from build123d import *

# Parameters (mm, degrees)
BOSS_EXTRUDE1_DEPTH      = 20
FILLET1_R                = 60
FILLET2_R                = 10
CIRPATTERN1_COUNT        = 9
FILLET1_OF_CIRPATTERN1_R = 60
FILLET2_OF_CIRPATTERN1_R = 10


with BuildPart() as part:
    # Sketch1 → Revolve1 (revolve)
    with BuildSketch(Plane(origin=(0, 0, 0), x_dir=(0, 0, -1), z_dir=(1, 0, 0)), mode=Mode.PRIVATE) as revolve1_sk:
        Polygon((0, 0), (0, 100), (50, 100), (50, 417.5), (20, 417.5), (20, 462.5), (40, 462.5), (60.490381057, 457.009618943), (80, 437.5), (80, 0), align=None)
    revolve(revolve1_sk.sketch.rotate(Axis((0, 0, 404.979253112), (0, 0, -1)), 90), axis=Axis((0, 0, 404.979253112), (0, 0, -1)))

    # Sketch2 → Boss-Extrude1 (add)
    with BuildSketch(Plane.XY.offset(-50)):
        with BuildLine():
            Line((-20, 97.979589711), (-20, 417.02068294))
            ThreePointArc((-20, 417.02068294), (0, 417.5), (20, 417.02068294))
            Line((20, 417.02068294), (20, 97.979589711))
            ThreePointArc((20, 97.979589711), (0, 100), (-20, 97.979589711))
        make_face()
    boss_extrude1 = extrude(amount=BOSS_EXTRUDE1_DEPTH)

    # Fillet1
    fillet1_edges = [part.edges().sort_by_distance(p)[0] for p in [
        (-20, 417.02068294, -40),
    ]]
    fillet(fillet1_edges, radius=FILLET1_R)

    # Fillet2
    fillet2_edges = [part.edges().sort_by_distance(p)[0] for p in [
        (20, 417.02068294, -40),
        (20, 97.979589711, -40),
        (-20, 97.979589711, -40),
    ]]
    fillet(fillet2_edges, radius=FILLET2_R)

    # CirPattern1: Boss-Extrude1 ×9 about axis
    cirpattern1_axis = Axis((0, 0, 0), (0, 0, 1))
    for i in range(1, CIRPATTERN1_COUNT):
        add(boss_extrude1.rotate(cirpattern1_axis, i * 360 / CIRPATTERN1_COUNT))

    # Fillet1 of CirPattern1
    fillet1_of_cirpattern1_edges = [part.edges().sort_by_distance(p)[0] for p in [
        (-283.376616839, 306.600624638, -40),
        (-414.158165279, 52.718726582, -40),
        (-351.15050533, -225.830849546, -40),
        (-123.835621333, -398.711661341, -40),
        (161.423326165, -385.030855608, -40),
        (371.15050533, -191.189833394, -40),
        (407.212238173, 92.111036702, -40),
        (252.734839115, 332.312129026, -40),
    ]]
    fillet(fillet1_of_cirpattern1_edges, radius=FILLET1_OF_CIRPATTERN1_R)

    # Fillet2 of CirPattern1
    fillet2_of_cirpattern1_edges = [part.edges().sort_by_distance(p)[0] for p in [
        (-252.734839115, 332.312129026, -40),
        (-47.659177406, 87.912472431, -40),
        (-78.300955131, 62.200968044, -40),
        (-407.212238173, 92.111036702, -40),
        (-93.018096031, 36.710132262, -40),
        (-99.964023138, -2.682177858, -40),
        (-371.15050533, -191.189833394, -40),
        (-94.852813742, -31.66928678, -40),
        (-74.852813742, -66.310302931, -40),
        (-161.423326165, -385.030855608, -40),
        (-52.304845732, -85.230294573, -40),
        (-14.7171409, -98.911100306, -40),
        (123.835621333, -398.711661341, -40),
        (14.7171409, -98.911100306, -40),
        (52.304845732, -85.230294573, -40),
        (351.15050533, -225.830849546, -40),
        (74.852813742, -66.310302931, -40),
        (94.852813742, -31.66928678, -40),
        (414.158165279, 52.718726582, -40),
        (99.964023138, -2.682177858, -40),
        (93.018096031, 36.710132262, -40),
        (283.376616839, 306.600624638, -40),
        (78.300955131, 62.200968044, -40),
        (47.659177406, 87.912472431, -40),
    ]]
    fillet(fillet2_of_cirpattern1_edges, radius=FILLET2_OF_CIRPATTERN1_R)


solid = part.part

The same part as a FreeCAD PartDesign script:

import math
import FreeCAD as App
import Part
import Sketcher
Q = App.Units.Quantity


def edges_at(feature, points):
    """Names of the edges that pass closest to the given points."""
    edges = feature.Shape.Edges
    near = lambda p: min(range(len(edges)), key=lambda i: edges[i].distToShape(Part.Vertex(*p))[0])
    return sorted({f"Edge{near(p) + 1}" for p in points})


def add_polygon(sketch, points):
    """Adds a closed chain of lines whose ends are joined by coincident constraints."""
    first, n = sketch.GeometryCount, len(points)
    for a, b in zip(points, points[1:] + points[:1]):
        sketch.addGeometry(Part.LineSegment(App.Vector(*a, 0), App.Vector(*b, 0)), False)
    for i in range(n):
        sketch.addConstraint(Sketcher.Constraint("Coincident", first + i, 2, first + (i + 1) % n, 1))

doc = App.newDocument("Part")
params = doc.addObject("Spreadsheet::Sheet", "Params")
for row, (alias, value) in enumerate([
    ("sketch1_width", "100 mm"),
    ("sketch1_width2", "45 mm"),
    ("sketch1_height", "80 mm"),
    ("sketch1_height2", "20 mm"),
    ("sketch1_height3", "30 mm"),
    ("revolution_angle", "360 deg"),
    ("sketch2_radius", "100 mm"),
    ("sketch2_radius2", "417.5 mm"),
    ("pad1_length", "20 mm"),
    ("fillet_radius", "60 mm"),
    ("fillet2_radius", "10 mm"),
    ("fillet3_radius", "60 mm"),
    ("fillet4_radius", "10 mm"),
], start=1):
    params.set(f"A{row}", alias)
    params.set(f"B{row}", "=" + value)
    params.setAlias(f"B{row}", alias)

body = doc.addObject("PartDesign::Body", "Body")

sketch1 = body.newObject("Sketcher::SketchObject", "Sketch")
sketch1.AttachmentSupport = (doc.getObject("YZ_Plane"), [""])
sketch1.MapMode = "FlatFace"
add_polygon(sketch1, [(100, 0), (0, 0), (0, -80), (438, -80), (457, -60), (462, -40), (462, -20), (418, -20), (418, -50), (100, -50)])
sketch1.addConstraint(Sketcher.Constraint("Horizontal", 0))
sketch1.addConstraint(Sketcher.Constraint("Vertical", 1))
sketch1.addConstraint(Sketcher.Constraint("Horizontal", 2))
sketch1.addConstraint(Sketcher.Constraint("Vertical", 5))
sketch1.addConstraint(Sketcher.Constraint("Horizontal", 6))
sketch1.addConstraint(Sketcher.Constraint("Vertical", 7))
sketch1.addConstraint(Sketcher.Constraint("Horizontal", 8))
sketch1.addConstraint(Sketcher.Constraint("Vertical", 9))
sketch1.addConstraint(Sketcher.Constraint("Coincident", 0, 2, -1, 1))
sketch1.addConstraint(Sketcher.Constraint("DistanceX", 0, 2, 0, 1, 100.0))
sketch1.addConstraint(Sketcher.Constraint("DistanceX", 6, 2, 6, 1, 45.0))
sketch1.addConstraint(Sketcher.Constraint("DistanceY", 1, 2, 1, 1, 80.0))
sketch1.addConstraint(Sketcher.Constraint("DistanceY", 5, 1, 5, 2, 20.0))
sketch1.addConstraint(Sketcher.Constraint("DistanceY", 7, 2, 7, 1, 30.0))
sketch1.addConstraint(Sketcher.Constraint("DistanceY", 9, 1, 9, 2, 50.0))
sketch1.addConstraint(Sketcher.Constraint("Angle", 3, Q("45 deg")))
sketch1.addConstraint(Sketcher.Constraint("Angle", 4, Q("75 deg")))
sketch1.addConstraint(Sketcher.Constraint("DistanceX", 2, 1, 2, 2, 437.5))
sketch1.addConstraint(Sketcher.Constraint("DistanceX", 8, 2, 8, 1, 317.5))
sketch1.setExpression("Constraints[19]", "Params.sketch1_width")
sketch1.setExpression("Constraints[20]", "Params.sketch1_width2")
sketch1.setExpression("Constraints[21]", "Params.sketch1_height")
sketch1.setExpression("Constraints[22]", "Params.sketch1_height2")
sketch1.setExpression("Constraints[23]", "Params.sketch1_height3")
revolution = body.newObject("PartDesign::Revolution", "Revolution")
revolution.Profile = sketch1
revolution.ReferenceAxis = (sketch1, ["V_Axis"])
revolution.setExpression("Angle", "Params.revolution_angle")

sketch2 = body.newObject("Sketcher::SketchObject", "Sketch001")
sketch2.AttachmentSupport = (doc.getObject("XY_Plane"), [""])
sketch2.MapMode = "FlatFace"
sketch2.AttachmentOffset = App.Placement(App.Vector(0, 0, -50), App.Rotation())
sketch2.addGeometry(Part.LineSegment(App.Vector(-20, 417, 0), App.Vector(-20, 98, 0)), False)
sketch2.addGeometry(Part.ArcOfCircle(Part.Circle(App.Vector(0, 0, 0), App.Vector(0, 0, 1), 100), math.radians(78), math.radians(102)), False)
sketch2.addGeometry(Part.LineSegment(App.Vector(20, 98, 0), App.Vector(20, 417, 0)), False)
sketch2.addGeometry(Part.ArcOfCircle(Part.Circle(App.Vector(0, 0, 0), App.Vector(0, 0, 1), 417), math.radians(87.25), math.radians(92.75)), False)
sketch2.addConstraint(Sketcher.Constraint("Coincident", 0, 2, 1, 2))
sketch2.addConstraint(Sketcher.Constraint("Coincident", 1, 1, 2, 1))
sketch2.addConstraint(Sketcher.Constraint("Coincident", 2, 2, 3, 1))
sketch2.addConstraint(Sketcher.Constraint("Coincident", 3, 2, 0, 1))
sketch2.addConstraint(Sketcher.Constraint("Vertical", 0))
sketch2.addConstraint(Sketcher.Constraint("Vertical", 2))
sketch2.addConstraint(Sketcher.Constraint("Coincident", 1, 3, -1, 1))
sketch2.addConstraint(Sketcher.Constraint("Coincident", 3, 3, -1, 1))
sketch2.addConstraint(Sketcher.Constraint("Horizontal", 0, 2, 1, 1))
sketch2.addConstraint(Sketcher.Constraint("Radius", 1, 100.0))
sketch2.addConstraint(Sketcher.Constraint("Radius", 3, 417.5))
sketch2.addConstraint(Sketcher.Constraint("DistanceX", 0, 2, -1, 1, 20.0))
sketch2.setExpression("Constraints[9]", "Params.sketch2_radius")
sketch2.setExpression("Constraints[10]", "Params.sketch2_radius2")
pad1 = body.newObject("PartDesign::Pad", "Pad")
pad1.Profile = sketch2
pad1.setExpression("Length", "Params.pad1_length")
doc.recompute()

fillet = body.newObject("PartDesign::Fillet", "Fillet")
fillet.Base = (pad1, edges_at(pad1, [(-20, 417.021, -40)]))
fillet.setExpression("Radius", "Params.fillet_radius")
doc.recompute()

fillet2 = body.newObject("PartDesign::Fillet", "Fillet001")
fillet2.Base = (fillet, edges_at(fillet, [(20, 417.021, -40), (20, 97.98, -40), (-20, 97.98, -40)]))
fillet2.setExpression("Radius", "Params.fillet2_radius")
doc.recompute()

polarpattern = body.newObject("PartDesign::PolarPattern", "PolarPattern")
polarpattern.Originals = [pad1]
polarpattern.Axis = (doc.getObject("Z_Axis"), [""])
polarpattern.Angle = 360
polarpattern.Occurrences = 9
body.Tip = polarpattern
doc.recompute()

fillet3 = body.newObject("PartDesign::Fillet", "Fillet002")
fillet3.Base = (polarpattern, edges_at(polarpattern, [
    (-283.377, 306.601, -40),
    (-414.158, 52.719, -40),
    (-351.151, -225.831, -40),
    (-123.836, -398.712, -40),
    (161.423, -385.031, -40),
    (371.151, -191.19, -40),
    (407.212, 92.111, -40),
    (252.735, 332.312, -40),
]))
fillet3.setExpression("Radius", "Params.fillet3_radius")
doc.recompute()

fillet4 = body.newObject("PartDesign::Fillet", "Fillet003")
fillet4.Base = (fillet3, edges_at(fillet3, [
    (-252.735, 332.312, -40),
    (-47.659, 87.912, -40),
    (-78.301, 62.201, -40),
    (-407.212, 92.111, -40),
    (-93.018, 36.71, -40),
    (-99.964, -2.682, -40),
    (-371.151, -191.19, -40),
    (-94.853, -31.669, -40),
    (-74.853, -66.31, -40),
    (-161.423, -385.031, -40),
    (-52.305, -85.23, -40),
    (-14.717, -98.911, -40),
    (123.836, -398.712, -40),
    (14.717, -98.911, -40),
    (52.305, -85.23, -40),
    (351.151, -225.831, -40),
    (74.853, -66.31, -40),
    (94.853, -31.669, -40),
    (414.158, 52.719, -40),
    (99.964, -2.682, -40),
    (93.018, 36.71, -40),
    (283.377, 306.601, -40),
    (78.301, 62.201, -40),
    (47.659, 87.912, -40),
]))
fillet4.setExpression("Radius", "Params.fillet4_radius")

doc.recompute()
